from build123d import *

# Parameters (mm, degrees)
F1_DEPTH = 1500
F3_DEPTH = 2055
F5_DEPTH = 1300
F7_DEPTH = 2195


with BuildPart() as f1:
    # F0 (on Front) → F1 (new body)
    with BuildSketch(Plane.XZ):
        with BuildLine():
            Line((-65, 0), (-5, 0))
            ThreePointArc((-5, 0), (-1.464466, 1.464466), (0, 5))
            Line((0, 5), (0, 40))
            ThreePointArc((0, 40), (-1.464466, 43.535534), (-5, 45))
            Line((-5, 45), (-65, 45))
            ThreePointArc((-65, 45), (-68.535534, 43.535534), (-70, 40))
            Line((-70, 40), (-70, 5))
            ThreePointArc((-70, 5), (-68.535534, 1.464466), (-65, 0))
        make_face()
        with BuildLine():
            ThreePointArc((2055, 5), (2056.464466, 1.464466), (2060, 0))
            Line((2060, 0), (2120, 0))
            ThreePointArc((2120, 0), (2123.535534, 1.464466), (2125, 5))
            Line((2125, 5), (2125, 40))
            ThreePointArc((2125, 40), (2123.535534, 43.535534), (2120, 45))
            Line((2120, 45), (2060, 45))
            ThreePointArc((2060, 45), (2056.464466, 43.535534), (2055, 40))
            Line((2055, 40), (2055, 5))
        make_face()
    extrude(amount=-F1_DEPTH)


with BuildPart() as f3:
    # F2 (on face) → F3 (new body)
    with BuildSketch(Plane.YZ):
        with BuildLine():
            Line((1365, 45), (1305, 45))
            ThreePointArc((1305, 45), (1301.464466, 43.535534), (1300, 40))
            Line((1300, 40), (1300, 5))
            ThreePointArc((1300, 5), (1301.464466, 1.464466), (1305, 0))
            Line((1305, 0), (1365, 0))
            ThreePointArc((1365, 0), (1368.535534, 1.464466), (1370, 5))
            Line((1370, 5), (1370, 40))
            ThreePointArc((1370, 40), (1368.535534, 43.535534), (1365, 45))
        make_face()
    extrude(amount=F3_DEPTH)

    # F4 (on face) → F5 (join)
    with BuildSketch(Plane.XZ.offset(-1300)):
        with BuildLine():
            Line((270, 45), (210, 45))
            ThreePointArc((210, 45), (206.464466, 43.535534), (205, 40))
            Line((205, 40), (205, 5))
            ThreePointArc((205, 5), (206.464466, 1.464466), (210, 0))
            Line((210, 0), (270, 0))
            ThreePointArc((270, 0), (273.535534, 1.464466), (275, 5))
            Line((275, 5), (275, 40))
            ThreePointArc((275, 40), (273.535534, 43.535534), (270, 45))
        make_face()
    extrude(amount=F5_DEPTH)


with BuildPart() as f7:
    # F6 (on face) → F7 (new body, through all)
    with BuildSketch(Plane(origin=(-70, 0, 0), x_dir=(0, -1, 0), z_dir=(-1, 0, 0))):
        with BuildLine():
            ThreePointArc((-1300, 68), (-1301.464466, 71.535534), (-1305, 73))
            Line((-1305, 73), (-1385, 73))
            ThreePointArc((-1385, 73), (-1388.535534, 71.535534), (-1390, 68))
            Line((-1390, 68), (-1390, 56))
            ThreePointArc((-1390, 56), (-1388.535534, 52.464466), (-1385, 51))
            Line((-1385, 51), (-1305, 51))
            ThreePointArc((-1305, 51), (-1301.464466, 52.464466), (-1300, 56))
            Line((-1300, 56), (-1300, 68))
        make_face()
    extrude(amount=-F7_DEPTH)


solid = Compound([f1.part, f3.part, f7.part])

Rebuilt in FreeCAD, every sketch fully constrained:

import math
import FreeCAD as App
import Part
import Sketcher
from FreeCAD import Vector
Q = App.Units.Quantity

doc = App.newDocument("Part")
body = doc.addObject("PartDesign::Body", "Body")
body.AllowCompound = True

# Sketch on XZ plane
sketch1 = body.newObject("Sketcher::SketchObject", "Sketch")
sketch1.AttachmentSupport = (doc.getObject("XZ_Plane"), [""])
sketch1.MapMode = "FlatFace"
sketch1.addGeometry(Part.LineSegment(Vector(-65, 0, 0), Vector(-5, 0, 0)), False)
sketch1.addGeometry(Part.ArcOfCircle(Part.Circle(Vector(-5, 5, 0), Vector(0, 0, 1), 5), math.radians(-90), math.radians(0)), False)
sketch1.addGeometry(Part.LineSegment(Vector(0, 5, 0), Vector(0, 40, 0)), False)
sketch1.addGeometry(Part.ArcOfCircle(Part.Circle(Vector(-5, 40, 0), Vector(0, 0, 1), 5), math.radians(0), math.radians(90)), False)
sketch1.addGeometry(Part.LineSegment(Vector(-5, 45, 0), Vector(-65, 45, 0)), False)
sketch1.addGeometry(Part.ArcOfCircle(Part.Circle(Vector(-65, 40, 0), Vector(0, 0, 1), 5), math.radians(90), math.radians(180)), False)
sketch1.addGeometry(Part.LineSegment(Vector(-70, 40, 0), Vector(-70, 5, 0)), False)
sketch1.addGeometry(Part.ArcOfCircle(Part.Circle(Vector(-65, 5, 0), Vector(0, 0, 1), 5), math.radians(180), math.radians(270)), False)
sketch1.addGeometry(Part.ArcOfCircle(Part.Circle(Vector(2060, 5, 0), Vector(0, 0, 1), 5), math.radians(180), math.radians(270)), False)
sketch1.addGeometry(Part.LineSegment(Vector(2060, 0, 0), Vector(2120, 0, 0)), False)
sketch1.addGeometry(Part.ArcOfCircle(Part.Circle(Vector(2120, 5, 0), Vector(0, 0, 1), 5), math.radians(-90), math.radians(0)), False)
sketch1.addGeometry(Part.LineSegment(Vector(2125, 5, 0), Vector(2125, 40, 0)), False)
sketch1.addGeometry(Part.ArcOfCircle(Part.Circle(Vector(2120, 40, 0), Vector(0, 0, 1), 5), math.radians(0), math.radians(90)), False)
sketch1.addGeometry(Part.LineSegment(Vector(2120, 45, 0), Vector(2060, 45, 0)), False)
sketch1.addGeometry(Part.ArcOfCircle(Part.Circle(Vector(2060, 40, 0), Vector(0, 0, 1), 5), math.radians(90), math.radians(180)), False)
sketch1.addGeometry(Part.LineSegment(Vector(2055, 40, 0), Vector(2055, 5, 0)), False)
sketch1.addConstraint(Sketcher.Constraint("Tangent", 0, 2, 1, 1))
sketch1.addConstraint(Sketcher.Constraint("Tangent", 1, 2, 2, 1))
sketch1.addConstraint(Sketcher.Constraint("Tangent", 2, 2, 3, 1))
sketch1.addConstraint(Sketcher.Constraint("Tangent", 3, 2, 4, 1))
sketch1.addConstraint(Sketcher.Constraint("Tangent", 4, 2, 5, 1))
sketch1.addConstraint(Sketcher.Constraint("Tangent", 5, 2, 6, 1))
sketch1.addConstraint(Sketcher.Constraint("Tangent", 6, 2, 7, 1))
sketch1.addConstraint(Sketcher.Constraint("Tangent", 7, 2, 0, 1))
sketch1.addConstraint(Sketcher.Constraint("Tangent", 8, 2, 9, 1))
sketch1.addConstraint(Sketcher.Constraint("Tangent", 9, 2, 10, 1))
sketch1.addConstraint(Sketcher.Constraint("Tangent", 10, 2, 11, 1))
sketch1.addConstraint(Sketcher.Constraint("Tangent", 11, 2, 12, 1))
sketch1.addConstraint(Sketcher.Constraint("Tangent", 12, 2, 13, 1))
sketch1.addConstraint(Sketcher.Constraint("Tangent", 13, 2, 14, 1))
sketch1.addConstraint(Sketcher.Constraint("Tangent", 14, 2, 15, 1))
sketch1.addConstraint(Sketcher.Constraint("Tangent", 15, 2, 8, 1))
sketch1.addConstraint(Sketcher.Constraint("Horizontal", 0))
sketch1.addConstraint(Sketcher.Constraint("Vertical", 2))
sketch1.addConstraint(Sketcher.Constraint("Horizontal", 4))
sketch1.addConstraint(Sketcher.Constraint("Vertical", 6))
sketch1.addConstraint(Sketcher.Constraint("Horizontal", 9))
sketch1.addConstraint(Sketcher.Constraint("Vertical", 11))
sketch1.addConstraint(Sketcher.Constraint("Horizontal", 13))
sketch1.addConstraint(Sketcher.Constraint("Vertical", 15))
sketch1.addConstraint(Sketcher.Constraint("Equal", 1, 3))
sketch1.addConstraint(Sketcher.Constraint("Equal", 3, 5))
sketch1.addConstraint(Sketcher.Constraint("Equal", 5, 7))
sketch1.addConstraint(Sketcher.Constraint("Equal", 7, 8))
sketch1.addConstraint(Sketcher.Constraint("Equal", 8, 10))
sketch1.addConstraint(Sketcher.Constraint("Equal", 10, 12))
sketch1.addConstraint(Sketcher.Constraint("Equal", 12, 14))
sketch1.addConstraint(Sketcher.Constraint("PointOnObject", 0, 2, -1))
sketch1.addConstraint(Sketcher.Constraint("PointOnObject", 1, 2, -2))
sketch1.addConstraint(Sketcher.Constraint("PointOnObject", 8, 2, -1))
sketch1.addConstraint(Sketcher.Constraint("Horizontal", 5, 3, 12, 3))
sketch1.addConstraint(Sketcher.Constraint("Equal", 4, 9))
sketch1.addConstraint(Sketcher.Constraint("Radius", 1, Q("5 mm")))
sketch1.addConstraint(Sketcher.Constraint("DistanceX", 0, 1, 0, 2, Q("60 mm")))
sketch1.addConstraint(Sketcher.Constraint("DistanceY", 2, 1, 2, 2, Q("35 mm")))
sketch1.addConstraint(Sketcher.Constraint("DistanceX", -1, 1, 8, 3, Q("2060 mm")))
pad1 = body.newObject("PartDesign::Pad", "Pad")
pad1.Profile = sketch1
pad1.Length = 1500
pad1.Reversed = True
body2 = doc.addObject("PartDesign::Body", "Body001")

# Sketch on YZ plane
sketch2 = body2.newObject("Sketcher::SketchObject", "Sketch001")
sketch2.AttachmentSupport = (doc.getObject("YZ_Plane001"), [""])
sketch2.MapMode = "FlatFace"
sketch2.addGeometry(Part.LineSegment(Vector(1365, 45, 0), Vector(1305, 45, 0)), False)
sketch2.addGeometry(Part.ArcOfCircle(Part.Circle(Vector(1305, 40, 0), Vector(0, 0, 1), 5), math.radians(90), math.radians(180)), False)
sketch2.addGeometry(Part.LineSegment(Vector(1300, 40, 0), Vector(1300, 5, 0)), False)
sketch2.addGeometry(Part.ArcOfCircle(Part.Circle(Vector(1305, 5, 0), Vector(0, 0, 1), 5), math.radians(180), math.radians(270)), False)
sketch2.addGeometry(Part.LineSegment(Vector(1305, 0, 0), Vector(1365, 0, 0)), False)
sketch2.addGeometry(Part.ArcOfCircle(Part.Circle(Vector(1365, 5, 0), Vector(0, 0, 1), 5), math.radians(-90), math.radians(0)), False)
sketch2.addGeometry(Part.LineSegment(Vector(1370, 5, 0), Vector(1370, 40, 0)), False)
sketch2.addGeometry(Part.ArcOfCircle(Part.Circle(Vector(1365, 40, 0), Vector(0, 0, 1), 5), math.radians(0), math.radians(90)), False)
sketch2.addConstraint(Sketcher.Constraint("Tangent", 0, 2, 1, 1))
sketch2.addConstraint(Sketcher.Constraint("Tangent", 1, 2, 2, 1))
sketch2.addConstraint(Sketcher.Constraint("Tangent", 2, 2, 3, 1))
sketch2.addConstraint(Sketcher.Constraint("Tangent", 3, 2, 4, 1))
sketch2.addConstraint(Sketcher.Constraint("Tangent", 4, 2, 5, 1))
sketch2.addConstraint(Sketcher.Constraint("Tangent", 5, 2, 6, 1))
sketch2.addConstraint(Sketcher.Constraint("Tangent", 6, 2, 7, 1))
sketch2.addConstraint(Sketcher.Constraint("Tangent", 7, 2, 0, 1))
sketch2.addConstraint(Sketcher.Constraint("Horizontal", 0))
sketch2.addConstraint(Sketcher.Constraint("Vertical", 2))
sketch2.addConstraint(Sketcher.Constraint("Horizontal", 4))
sketch2.addConstraint(Sketcher.Constraint("Vertical", 6))
sketch2.addConstraint(Sketcher.Constraint("Equal", 1, 3))
sketch2.addConstraint(Sketcher.Constraint("Equal", 3, 5))
sketch2.addConstraint(Sketcher.Constraint("Equal", 5, 7))
sketch2.addConstraint(Sketcher.Constraint("PointOnObject", 3, 2, -1))
sketch2.addConstraint(Sketcher.Constraint("Radius", 1, Q("5 mm")))
sketch2.addConstraint(Sketcher.Constraint("DistanceX", 0, 2, 0, 1, Q("60 mm")))
sketch2.addConstraint(Sketcher.Constraint("DistanceY", 2, 2, 2, 1, Q("35 mm")))
sketch2.addConstraint(Sketcher.Constraint("DistanceX", -1, 1, 1, 3, Q("1305 mm")))
pad2 = body2.newObject("PartDesign::Pad", "Pad001")
pad2.Profile = sketch2
pad2.Length = 2055

# Sketch on XZ plane
sketch3 = body2.newObject("Sketcher::SketchObject", "Sketch002")
sketch3.AttachmentSupport = (doc.getObject("XZ_Plane001"), [""])
sketch3.MapMode = "FlatFace"
sketch3.AttachmentOffset = App.Placement(Vector(0, 0, -1300), App.Rotation())
sketch3.addGeometry(Part.LineSegment(Vector(270, 45, 0), Vector(210, 45, 0)), False)
sketch3.addGeometry(Part.ArcOfCircle(Part.Circle(Vector(210, 40, 0), Vector(0, 0, 1), 5), math.radians(90), math.radians(180)), False)
sketch3.addGeometry(Part.LineSegment(Vector(205, 40, 0), Vector(205, 5, 0)), False)
sketch3.addGeometry(Part.ArcOfCircle(Part.Circle(Vector(210, 5, 0), Vector(0, 0, 1), 5), math.radians(180), math.radians(270)), False)
sketch3.addGeometry(Part.LineSegment(Vector(210, 0, 0), Vector(270, 0, 0)), False)
sketch3.addGeometry(Part.ArcOfCircle(Part.Circle(Vector(270, 5, 0), Vector(0, 0, 1), 5), math.radians(-90), math.radians(0)), False)
sketch3.addGeometry(Part.LineSegment(Vector(275, 5, 0), Vector(275, 40, 0)), False)
sketch3.addGeometry(Part.ArcOfCircle(Part.Circle(Vector(270, 40, 0), Vector(0, 0, 1), 5), math.radians(0), math.radians(90)), False)
sketch3.addConstraint(Sketcher.Constraint("Tangent", 0, 2, 1, 1))
sketch3.addConstraint(Sketcher.Constraint("Tangent", 1, 2, 2, 1))
sketch3.addConstraint(Sketcher.Constraint("Tangent", 2, 2, 3, 1))
sketch3.addConstraint(Sketcher.Constraint("Tangent", 3, 2, 4, 1))
sketch3.addConstraint(Sketcher.Constraint("Tangent", 4, 2, 5, 1))
sketch3.addConstraint(Sketcher.Constraint("Tangent", 5, 2, 6, 1))
sketch3.addConstraint(Sketcher.Constraint("Tangent", 6, 2, 7, 1))
sketch3.addConstraint(Sketcher.Constraint("Tangent", 7, 2, 0, 1))
sketch3.addConstraint(Sketcher.Constraint("Horizontal", 0))
sketch3.addConstraint(Sketcher.Constraint("Vertical", 2))
sketch3.addConstraint(Sketcher.Constraint("Horizontal", 4))
sketch3.addConstraint(Sketcher.Constraint("Vertical", 6))
sketch3.addConstraint(Sketcher.Constraint("Equal", 1, 3))
sketch3.addConstraint(Sketcher.Constraint("Equal", 3, 5))
sketch3.addConstraint(Sketcher.Constraint("Equal", 5, 7))
sketch3.addConstraint(Sketcher.Constraint("PointOnObject", 3, 2, -1))
sketch3.addConstraint(Sketcher.Constraint("Radius", 1, Q("5 mm")))
sketch3.addConstraint(Sketcher.Constraint("DistanceX", 0, 2, 0, 1, Q("60 mm")))
sketch3.addConstraint(Sketcher.Constraint("DistanceY", 2, 2, 2, 1, Q("35 mm")))
sketch3.addConstraint(Sketcher.Constraint("DistanceX", -1, 1, 1, 3, Q("210 mm")))
pad3 = body2.newObject("PartDesign::Pad", "Pad002")
pad3.Profile = sketch3
pad3.Length = 1300
body3 = doc.addObject("PartDesign::Body", "Body002")

# Sketch on YZ plane
sketch4 = body3.newObject("Sketcher::SketchObject", "Sketch003")
sketch4.AttachmentSupport = (doc.getObject("YZ_Plane002"), [""])
sketch4.MapMode = "FlatFace"
sketch4.AttachmentOffset = App.Placement(Vector(0, 0, -70), App.Rotation())
sketch4.addGeometry(Part.ArcOfCircle(Part.Circle(Vector(1305, 68, 0), Vector(0, 0, 1), 5), math.radians(90), math.radians(180)), False)
sketch4.addGeometry(Part.LineSegment(Vector(1305, 73, 0), Vector(1385, 73, 0)), False)
sketch4.addGeometry(Part.ArcOfCircle(Part.Circle(Vector(1385, 68, 0), Vector(0, 0, 1), 5), math.radians(0), math.radians(90)), False)
sketch4.addGeometry(Part.LineSegment(Vector(1390, 68, 0), Vector(1390, 56, 0)), False)
sketch4.addGeometry(Part.ArcOfCircle(Part.Circle(Vector(1385, 56, 0), Vector(0, 0, 1), 5), math.radians(-90), math.radians(0)), False)
sketch4.addGeometry(Part.LineSegment(Vector(1385, 51, 0), Vector(1305, 51, 0)), False)
sketch4.addGeometry(Part.ArcOfCircle(Part.Circle(Vector(1305, 56, 0), Vector(0, 0, 1), 5), math.radians(180), math.radians(270)), False)
sketch4.addGeometry(Part.LineSegment(Vector(1300, 56, 0), Vector(1300, 68, 0)), False)
sketch4.addConstraint(Sketcher.Constraint("Tangent", 0, 1, 1, 1))
sketch4.addConstraint(Sketcher.Constraint("Tangent", 1, 2, 2, 2))
sketch4.addConstraint(Sketcher.Constraint("Tangent", 2, 1, 3, 1))
sketch4.addConstraint(Sketcher.Constraint("Tangent", 3, 2, 4, 2))
sketch4.addConstraint(Sketcher.Constraint("Tangent", 4, 1, 5, 1))
sketch4.addConstraint(Sketcher.Constraint("Tangent", 5, 2, 6, 2))
sketch4.addConstraint(Sketcher.Constraint("Tangent", 6, 1, 7, 1))
sketch4.addConstraint(Sketcher.Constraint("Tangent", 7, 2, 0, 2))
sketch4.addConstraint(Sketcher.Constraint("Horizontal", 1))
sketch4.addConstraint(Sketcher.Constraint("Vertical", 3))
sketch4.addConstraint(Sketcher.Constraint("Horizontal", 5))
sketch4.addConstraint(Sketcher.Constraint("Vertical", 7))
sketch4.addConstraint(Sketcher.Constraint("Equal", 0, 2))
sketch4.addConstraint(Sketcher.Constraint("Equal", 2, 4))
sketch4.addConstraint(Sketcher.Constraint("Equal", 4, 6))
sketch4.addConstraint(Sketcher.Constraint("Radius", 0, Q("5 mm")))
sketch4.addConstraint(Sketcher.Constraint("DistanceX", 1, 1, 1, 2, Q("80 mm")))
sketch4.addConstraint(Sketcher.Constraint("DistanceY", 3, 2, 3, 1, Q("12 mm")))
sketch4.addConstraint(Sketcher.Constraint("DistanceX", -1, 1, 0, 3, Q("1305 mm")))
sketch4.addConstraint(Sketcher.Constraint("DistanceY", -1, 1, 0, 3, Q("68 mm")))
pad4 = body3.newObject("PartDesign::Pad", "Pad003")
pad4.Profile = sketch4
pad4.Length = 2195

doc.recompute()
